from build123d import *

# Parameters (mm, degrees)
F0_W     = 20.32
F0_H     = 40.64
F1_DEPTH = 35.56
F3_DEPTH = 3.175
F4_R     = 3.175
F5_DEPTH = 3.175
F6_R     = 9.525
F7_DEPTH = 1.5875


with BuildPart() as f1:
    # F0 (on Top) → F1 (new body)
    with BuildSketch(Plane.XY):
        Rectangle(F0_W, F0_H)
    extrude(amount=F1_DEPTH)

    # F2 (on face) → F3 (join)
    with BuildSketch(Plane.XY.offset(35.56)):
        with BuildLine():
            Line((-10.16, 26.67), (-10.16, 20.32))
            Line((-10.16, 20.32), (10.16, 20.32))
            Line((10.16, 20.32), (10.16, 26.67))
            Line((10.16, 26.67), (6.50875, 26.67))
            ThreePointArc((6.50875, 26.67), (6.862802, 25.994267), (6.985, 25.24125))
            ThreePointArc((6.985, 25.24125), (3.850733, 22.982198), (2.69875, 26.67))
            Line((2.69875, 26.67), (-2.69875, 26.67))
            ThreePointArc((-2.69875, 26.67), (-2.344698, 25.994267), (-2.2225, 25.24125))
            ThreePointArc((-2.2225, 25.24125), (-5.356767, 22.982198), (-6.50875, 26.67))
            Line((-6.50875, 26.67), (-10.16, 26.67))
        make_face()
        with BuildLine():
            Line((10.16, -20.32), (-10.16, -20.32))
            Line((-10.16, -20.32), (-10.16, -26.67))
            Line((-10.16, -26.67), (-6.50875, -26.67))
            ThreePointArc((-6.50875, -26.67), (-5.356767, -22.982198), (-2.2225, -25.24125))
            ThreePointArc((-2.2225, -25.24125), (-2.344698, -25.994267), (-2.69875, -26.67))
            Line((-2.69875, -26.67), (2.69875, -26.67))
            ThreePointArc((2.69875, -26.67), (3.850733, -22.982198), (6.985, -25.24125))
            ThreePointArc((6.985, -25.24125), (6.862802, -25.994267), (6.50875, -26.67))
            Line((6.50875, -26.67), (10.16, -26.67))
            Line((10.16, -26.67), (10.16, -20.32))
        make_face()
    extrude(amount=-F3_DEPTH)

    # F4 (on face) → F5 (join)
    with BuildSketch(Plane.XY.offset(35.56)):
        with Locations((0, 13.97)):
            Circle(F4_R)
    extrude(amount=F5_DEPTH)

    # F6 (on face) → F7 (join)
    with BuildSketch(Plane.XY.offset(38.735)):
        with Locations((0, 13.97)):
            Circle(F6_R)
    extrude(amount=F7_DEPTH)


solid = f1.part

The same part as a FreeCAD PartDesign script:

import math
import FreeCAD as App
import Part
import Sketcher
from FreeCAD import Vector
Q = App.Units.Quantity


def add_polygon(sketch, points):
    """Adds a closed chain of lines whose ends are joined by coincident constraints."""
    first, n = sketch.GeometryCount, len(points)
    for a, b in zip(points, points[1:] + points[:1]):
        sketch.addGeometry(Part.LineSegment(App.Vector(*a, 0), App.Vector(*b, 0)), False)
    for i in range(n):
        sketch.addConstraint(Sketcher.Constraint("Coincident", first + i, 2, first + (i + 1) % n, 1))

doc = App.newDocument("Part")
params = doc.addObject("Spreadsheet::Sheet", "Params")
for row, (alias, value) in enumerate([
    ("sketch1_width", "0.8 in"),
    ("sketch1_height", "1.6 in"),
    ("pad1_length", "1.4 in"),
    ("sketch2_width", "0.8 in"),
    ("sketch2_radius", "0.0937502 in"),
    ("sketch2_height", "0.25 in"),
    ("pad2_length", "0.125 in"),
    ("sketch3_diameter", "0.25 in"),
    ("pad3_length", "0.125 in"),
    ("sketch4_diameter", "0.75 in"),
    ("pad4_length", "0.0625 in"),
], start=1):
    params.set(f"A{row}", alias)
    params.set(f"B{row}", "=" + value)
    params.setAlias(f"B{row}", alias)

body = doc.addObject("PartDesign::Body", "Body")

# Sketch on XY plane
sketch1 = body.newObject("Sketcher::SketchObject", "Sketch")
sketch1.AttachmentSupport = (doc.getObject("XY_Plane"), [""])
sketch1.MapMode = "FlatFace"
add_polygon(sketch1, [(-10.16, 20.32), (-10.16, -20.32), (10.16, -20.32), (10.16, 20.32)])  # lines 0-3
sketch1.addConstraint([
    Sketcher.Constraint("Vertical", 0),
    Sketcher.Constraint("Horizontal", 1),
    Sketcher.Constraint("Vertical", 2),
    Sketcher.Constraint("Horizontal", 3),
    Sketcher.Constraint("Symmetric", 0, 2, 2, 2, -1, 1),
    Sketcher.Constraint("DistanceX", 1, 1, 1, 2, Q("0.8 in")),
    Sketcher.Constraint("DistanceY", 0, 2, 0, 1, Q("1.6 in")),
])
sketch1.setExpression("Constraints[9]", "Params.sketch1_width")
sketch1.setExpression("Constraints[10]", "Params.sketch1_height")
pad1 = body.newObject("PartDesign::Pad", "Pad")
pad1.Profile = sketch1
pad1.setExpression("Length", "Params.pad1_length")

# Sketch on XY plane
sketch2 = body.newObject("Sketcher::SketchObject", "Sketch001")
sketch2.AttachmentSupport = (doc.getObject("XY_Plane"), [""])
sketch2.MapMode = "FlatFace"
sketch2.AttachmentOffset = App.Placement(Vector(0, 0, 1.4 * 25.4), App.Rotation())
sketch2.addGeometry([
    Part.LineSegment(Vector(-10.16, 26.67, 0), Vector(-10.16, 20.32, 0)),  # 0
    Part.LineSegment(Vector(-10.16, 20.32, 0), Vector(10.16, 20.32, 0)),  # 1
    Part.LineSegment(Vector(10.16, 20.32, 0), Vector(10.16, 26.67, 0)),  # 2
    Part.LineSegment(Vector(10.16, 26.67, 0), Vector(6.50875, 26.67, 0)),  # 3
    Part.ArcOfCircle(Part.Circle(Vector(4.603746, 25.241249, 0), Vector(0, 0, 1), 2.381254), math.radians(0.000032), math.radians(36.869866)),  # 4
    Part.ArcOfCircle(Part.Circle(Vector(4.60375, 25.24125, 0), Vector(0, 0, 1), 2.38125), math.radians(143.130106), math.radians(359.999996)),  # 5
    Part.LineSegment(Vector(2.69875, 26.67, 0), Vector(-2.69875, 26.67, 0)),  # 6
    Part.ArcOfCircle(Part.Circle(Vector(-4.603754, 25.241249, 0), Vector(0, 0, 1), 2.381254), math.radians(0.000032), math.radians(36.869866)),  # 7
    Part.ArcOfCircle(Part.Circle(Vector(-4.60375, 25.24125, 0), Vector(0, 0, 1), 2.38125), math.radians(143.130106), math.radians(359.999996)),  # 8
    Part.LineSegment(Vector(-6.50875, 26.67, 0), Vector(-10.16, 26.67, 0)),  # 9
    Part.LineSegment(Vector(10.16, -20.32, 0), Vector(-10.16, -20.32, 0)),  # 10
    Part.LineSegment(Vector(-10.16, -20.32, 0), Vector(-10.16, -26.67, 0)),  # 11
    Part.LineSegment(Vector(-10.16, -26.67, 0), Vector(-6.50875, -26.67, 0)),  # 12
    Part.ArcOfCircle(Part.Circle(Vector(-4.60375, -25.24125, 0), Vector(0, 0, 1), 2.38125), math.radians(0.000004), math.radians(216.869894)),  # 13
    Part.ArcOfCircle(Part.Circle(Vector(-4.603754, -25.241249, 0), Vector(0, 0, 1), 2.381254), math.radians(-36.869866), math.radians(-0.000032)),  # 14
    Part.LineSegment(Vector(-2.69875, -26.67, 0), Vector(2.69875, -26.67, 0)),  # 15
    Part.ArcOfCircle(Part.Circle(Vector(4.60375, -25.24125, 0), Vector(0, 0, 1), 2.38125), math.radians(0.000004), math.radians(216.869894)),  # 16
    Part.ArcOfCircle(Part.Circle(Vector(4.603746, -25.241249, 0), Vector(0, 0, 1), 2.381254), math.radians(-36.869866), math.radians(-0.000032)),  # 17
    Part.LineSegment(Vector(6.50875, -26.67, 0), Vector(10.16, -26.67, 0)),  # 18
    Part.LineSegment(Vector(10.16, -26.67, 0), Vector(10.16, -20.32, 0)),  # 19
], False)
sketch2.addConstraint([
    Sketcher.Constraint("Coincident", 0, 2, 1, 1),
    Sketcher.Constraint("Coincident", 1, 2, 2, 1),
    Sketcher.Constraint("Coincident", 2, 2, 3, 1),
    Sketcher.Constraint("Coincident", 3, 2, 4, 2),
    Sketcher.Constraint("Tangent", 4, 1, 5, 2),
    Sketcher.Constraint("Coincident", 5, 1, 6, 1),
    Sketcher.Constraint("Coincident", 6, 2, 7, 2),
    Sketcher.Constraint("Tangent", 7, 1, 8, 2),
    Sketcher.Constraint("Coincident", 8, 1, 9, 1),
    Sketcher.Constraint("Coincident", 9, 2, 0, 1),
    Sketcher.Constraint("Coincident", 10, 2, 11, 1),
    Sketcher.Constraint("Coincident", 11, 2, 12, 1),
    Sketcher.Constraint("Coincident", 12, 2, 13, 2),
    Sketcher.Constraint("Tangent", 13, 1, 14, 2),
    Sketcher.Constraint("Coincident", 14, 1, 15, 1),
    Sketcher.Constraint("Coincident", 15, 2, 16, 2),
    Sketcher.Constraint("Tangent", 16, 1, 17, 2),
    Sketcher.Constraint("Coincident", 17, 1, 18, 1),
    Sketcher.Constraint("Coincident", 18, 2, 19, 1),
    Sketcher.Constraint("Coincident", 19, 2, 10, 1),
    Sketcher.Constraint("Vertical", 0),
    Sketcher.Constraint("Horizontal", 1),
    Sketcher.Constraint("Vertical", 2),
    Sketcher.Constraint("Horizontal", 3),
    Sketcher.Constraint("Horizontal", 6),
    Sketcher.Constraint("Horizontal", 9),
    Sketcher.Constraint("Horizontal", 10),
    Sketcher.Constraint("Vertical", 11),
    Sketcher.Constraint("Horizontal", 12),
    Sketcher.Constraint("Horizontal", 15),
    Sketcher.Constraint("Horizontal", 18),
    Sketcher.Constraint("Vertical", 19),
    Sketcher.Constraint("Equal", 4, 7),
    Sketcher.Constraint("Equal", 5, 8),
    Sketcher.Constraint("Equal", 8, 13),
    Sketcher.Constraint("Equal", 7, 14),
    Sketcher.Constraint("Equal", 13, 16),
    Sketcher.Constraint("Equal", 14, 17),
    Sketcher.Constraint("Symmetric", 4, 3, 13, 3, -1, 1),
    Sketcher.Constraint("Symmetric", 7, 3, 16, 3, -1, 1),
    Sketcher.Constraint("Symmetric", 1, 2, 10, 2, -1, 1),
    Sketcher.Constraint("Symmetric", 3, 2, 12, 2, -1, 1),
    Sketcher.Constraint("Symmetric", 9, 2, 18, 2, -1, 1),
    Sketcher.Constraint("Symmetric", 4, 3, 7, 3, -2),
    Sketcher.Constraint("Symmetric", 2, 2, 9, 2, -2),
    Sketcher.Constraint("Horizontal", 8, 3, 4, 1),
    Sketcher.Constraint("Horizontal", 3, 2, 5, 1),
    Sketcher.Constraint("Horizontal", 4, 1, 7, 1),
    Sketcher.Constraint("Horizontal", 17, 3, 13, 1),
    Sketcher.Constraint("Horizontal", 12, 2, 14, 1),
    Sketcher.Constraint("Horizontal", 13, 1, 16, 1),
    Sketcher.Constraint("DistanceX", 1, 1, 1, 2, Q("0.8 in")),
    Sketcher.Constraint("Radius", 4, Q("0.0937502 in")),
    Sketcher.Constraint("DistanceY", 0, 2, 0, 1, Q("0.25 in")),
    Sketcher.Constraint("DistanceY", -1, 1, 0, 2, Q("0.8 in")),
    Sketcher.Constraint("DistanceX", 5, 1, 3, 2, Q("0.15 in")),
    Sketcher.Constraint("DistanceX", 6, 2, 6, 1, Q("0.2125 in")),
])
sketch2.setExpression("Constraints[51]", "Params.sketch2_width")
sketch2.setExpression("Constraints[52]", "Params.sketch2_radius")
sketch2.setExpression("Constraints[53]", "Params.sketch2_height")
pad2 = body.newObject("PartDesign::Pad", "Pad001")
pad2.Profile = sketch2
pad2.setExpression("Length", "Params.pad2_length")
pad2.Reversed = True

# Sketch on XY plane
sketch3 = body.newObject("Sketcher::SketchObject", "Sketch002")
sketch3.AttachmentSupport = (doc.getObject("XY_Plane"), [""])
sketch3.MapMode = "FlatFace"
sketch3.AttachmentOffset = App.Placement(Vector(0, 0, 1.4 * 25.4), App.Rotation())
sketch3.addGeometry(Part.Circle(Vector(0, 13.97, 0), Vector(0, 0, 1), 3.175), False)
sketch3.addConstraint([
    Sketcher.Constraint("PointOnObject", 0, 3, -2),
    Sketcher.Constraint("Diameter", 0, Q("0.25 in")),
    Sketcher.Constraint("DistanceY", -1, 1, 0, 3, Q("0.55 in")),
])
sketch3.setExpression("Constraints[1]", "Params.sketch3_diameter")
pad3 = body.newObject("PartDesign::Pad", "Pad002")
pad3.Profile = sketch3
pad3.setExpression("Length", "Params.pad3_length")

# Sketch on XY plane
sketch4 = body.newObject("Sketcher::SketchObject", "Sketch003")
sketch4.AttachmentSupport = (doc.getObject("XY_Plane"), [""])
sketch4.MapMode = "FlatFace"
sketch4.AttachmentOffset = App.Placement(Vector(0, 0, 1.525 * 25.4), App.Rotation())
sketch4.addGeometry(Part.Circle(Vector(0, 13.97, 0), Vector(0, 0, 1), 9.525), False)
sketch4.addConstraint([
    Sketcher.Constraint("PointOnObject", 0, 3, -2),
    Sketcher.Constraint("Diameter", 0, Q("0.75 in")),
    Sketcher.Constraint("DistanceY", -1, 1, 0, 3, Q("0.55 in")),
])
sketch4.setExpression("Constraints[1]", "Params.sketch4_diameter")
pad4 = body.newObject("PartDesign::Pad", "Pad003")
pad4.Profile = sketch4
pad4.setExpression("Length", "Params.pad4_length")

doc.recompute()
